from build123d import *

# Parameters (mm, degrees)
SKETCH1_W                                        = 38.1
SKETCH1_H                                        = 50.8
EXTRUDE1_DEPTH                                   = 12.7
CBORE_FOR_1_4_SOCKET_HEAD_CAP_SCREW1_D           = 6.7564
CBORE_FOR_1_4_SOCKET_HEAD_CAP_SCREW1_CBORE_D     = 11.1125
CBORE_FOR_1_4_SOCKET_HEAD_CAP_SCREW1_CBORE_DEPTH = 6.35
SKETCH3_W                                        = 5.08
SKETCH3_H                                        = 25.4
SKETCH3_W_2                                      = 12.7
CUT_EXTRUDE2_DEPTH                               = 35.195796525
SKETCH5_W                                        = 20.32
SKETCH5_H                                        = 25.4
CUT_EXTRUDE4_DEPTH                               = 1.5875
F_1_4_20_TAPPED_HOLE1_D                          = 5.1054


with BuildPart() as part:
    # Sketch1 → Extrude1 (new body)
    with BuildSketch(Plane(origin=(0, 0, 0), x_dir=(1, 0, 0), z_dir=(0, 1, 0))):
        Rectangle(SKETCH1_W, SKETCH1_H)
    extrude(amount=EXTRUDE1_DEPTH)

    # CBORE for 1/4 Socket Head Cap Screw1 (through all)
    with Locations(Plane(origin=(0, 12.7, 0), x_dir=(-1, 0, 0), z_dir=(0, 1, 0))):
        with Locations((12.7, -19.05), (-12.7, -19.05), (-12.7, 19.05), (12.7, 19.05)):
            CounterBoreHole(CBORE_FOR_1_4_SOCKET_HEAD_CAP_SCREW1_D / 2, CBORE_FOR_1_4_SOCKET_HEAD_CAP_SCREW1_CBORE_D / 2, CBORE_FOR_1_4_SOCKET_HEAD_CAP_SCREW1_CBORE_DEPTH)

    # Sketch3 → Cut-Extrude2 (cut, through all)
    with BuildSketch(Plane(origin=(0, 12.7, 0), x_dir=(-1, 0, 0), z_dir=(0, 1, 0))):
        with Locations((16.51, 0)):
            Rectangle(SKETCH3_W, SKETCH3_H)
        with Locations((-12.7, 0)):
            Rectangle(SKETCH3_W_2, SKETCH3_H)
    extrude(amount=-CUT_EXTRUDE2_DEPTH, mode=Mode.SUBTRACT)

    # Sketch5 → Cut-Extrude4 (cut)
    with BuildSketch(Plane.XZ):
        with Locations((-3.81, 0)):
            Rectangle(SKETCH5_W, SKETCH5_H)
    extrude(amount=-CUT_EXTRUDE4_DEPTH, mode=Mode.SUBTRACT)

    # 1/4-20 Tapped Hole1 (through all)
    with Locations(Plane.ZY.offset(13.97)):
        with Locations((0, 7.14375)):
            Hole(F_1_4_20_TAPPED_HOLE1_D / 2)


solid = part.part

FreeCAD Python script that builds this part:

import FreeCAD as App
import Part
import Sketcher
Q = App.Units.Quantity

doc = App.newDocument("Part")
body = doc.addObject("PartDesign::Body", "Body")

sketch1 = doc.addObject("Sketcher::SketchObject", "Sketch")
body.addObject(sketch1)
sketch1.AttachmentSupport = (doc.XZ_Plane, [""])
sketch1.MapMode = "FlatFace"
sketch1.addGeometry(Part.LineSegment(App.Vector(-19, -25, 0), App.Vector(-19, 25, 0)), False)
sketch1.addGeometry(Part.LineSegment(App.Vector(-19, 25, 0), App.Vector(19, 25, 0)), False)
sketch1.addGeometry(Part.LineSegment(App.Vector(19, 25, 0), App.Vector(19, -25, 0)), False)
sketch1.addGeometry(Part.LineSegment(App.Vector(19, -25, 0), App.Vector(-19, -25, 0)), False)
sketch1.addConstraint(Sketcher.Constraint("Coincident", 0, 2, 1, 1))
sketch1.addConstraint(Sketcher.Constraint("Coincident", 1, 2, 2, 1))
sketch1.addConstraint(Sketcher.Constraint("Coincident", 2, 2, 3, 1))
sketch1.addConstraint(Sketcher.Constraint("Coincident", 3, 2, 0, 1))
sketch1.addConstraint(Sketcher.Constraint("Vertical", 0))
sketch1.addConstraint(Sketcher.Constraint("Horizontal", 1))
sketch1.addConstraint(Sketcher.Constraint("Vertical", 2))
sketch1.addConstraint(Sketcher.Constraint("Horizontal", 3))
sketch1.addConstraint(Sketcher.Constraint("Symmetric", 0, 2, 2, 2, -1, 1))
sketch1.addConstraint(Sketcher.Constraint("DistanceY", 0, 1, 0, 2, Q("2 in")))
sketch1.addConstraint(Sketcher.Constraint("DistanceX", 1, 1, 1, 2, Q("1.5 in")))
pad1 = doc.addObject("PartDesign::Pad", "Pad")
body.addObject(pad1)
pad1.Profile = sketch1
pad1.Length = Q("0.5 in")
pad1.Reversed = True

sketch2 = doc.addObject("Sketcher::SketchObject", "Sketch001")
body.addObject(sketch2)
sketch2.AttachmentSupport = (doc.XZ_Plane, [""])
sketch2.MapMode = "FlatFace"
sketch2.AttachmentOffset = App.Placement(App.Vector(0, 0, -0.5 * 25.4), App.Rotation())
sketch2.addGeometry(Part.Circle(App.Vector(-12.7, -19.1, 0), App.Vector(0, 0, 1), 3.4), False)
sketch2.addGeometry(Part.Circle(App.Vector(12.7, -19.1, 0), App.Vector(0, 0, 1), 3.4), False)
sketch2.addGeometry(Part.Circle(App.Vector(12.7, 19.1, 0), App.Vector(0, 0, 1), 3.4), False)
sketch2.addGeometry(Part.Circle(App.Vector(-12.7, 19.1, 0), App.Vector(0, 0, 1), 3.4), False)
sketch2.addConstraint(Sketcher.Constraint("Equal", 0, 1))
sketch2.addConstraint(Sketcher.Constraint("Equal", 1, 2))
sketch2.addConstraint(Sketcher.Constraint("Equal", 2, 3))
sketch2.addConstraint(Sketcher.Constraint("Symmetric", 0, 3, 2, 3, -1, 1))
sketch2.addConstraint(Sketcher.Constraint("Symmetric", 1, 3, 3, 3, -1, 1))
sketch2.addConstraint(Sketcher.Constraint("Symmetric", 0, 3, 1, 3, -2))
sketch2.addConstraint(Sketcher.Constraint("Diameter", 0, Q("0.266 in")))
sketch2.addConstraint(Sketcher.Constraint("DistanceX", 0, 3, 1, 3, Q("1 in")))
sketch2.addConstraint(Sketcher.Constraint("DistanceY", 1, 3, 2, 3, Q("1.5 in")))
doc.recompute()
hole = doc.addObject("PartDesign::Hole", "Hole")
body.addObject(hole)
hole.Profile = sketch2
hole.ThreadType = "None"
hole.Diameter = Q("0.266 in")
hole.DepthType = "ThroughAll"
hole.HoleCutType = "Counterbore"
hole.HoleCutDiameter = Q("0.4375 in")
hole.HoleCutDepth = Q("0.25 in")
hole.Reversed = True

sketch3 = doc.addObject("Sketcher::SketchObject", "Sketch002")
body.addObject(sketch3)
sketch3.AttachmentSupport = (doc.XZ_Plane, [""])
sketch3.MapMode = "FlatFace"
sketch3.AttachmentOffset = App.Placement(App.Vector(0, 0, -0.5 * 25.4), App.Rotation())
sketch3.addGeometry(Part.LineSegment(App.Vector(-14, 13, 0), App.Vector(-14, -13, 0)), False)
sketch3.addGeometry(Part.LineSegment(App.Vector(-14, -13, 0), App.Vector(-19, -13, 0)), False)
sketch3.addGeometry(Part.LineSegment(App.Vector(-19, -13, 0), App.Vector(-19, 13, 0)), False)
sketch3.addGeometry(Part.LineSegment(App.Vector(-19, 13, 0), App.Vector(-14, 13, 0)), False)
sketch3.addGeometry(Part.LineSegment(App.Vector(19, 13, 0), App.Vector(19, -13, 0)), False)
sketch3.addGeometry(Part.LineSegment(App.Vector(19, -13, 0), App.Vector(6, -13, 0)), False)
sketch3.addGeometry(Part.LineSegment(App.Vector(6, -13, 0), App.Vector(6, 13, 0)), False)
sketch3.addGeometry(Part.LineSegment(App.Vector(6, 13, 0), App.Vector(19, 13, 0)), False)
sketch3.addConstraint(Sketcher.Constraint("Coincident", 0, 2, 1, 1))
sketch3.addConstraint(Sketcher.Constraint("Coincident", 1, 2, 2, 1))
sketch3.addConstraint(Sketcher.Constraint("Coincident", 2, 2, 3, 1))
sketch3.addConstraint(Sketcher.Constraint("Coincident", 3, 2, 0, 1))
sketch3.addConstraint(Sketcher.Constraint("Coincident", 4, 2, 5, 1))
sketch3.addConstraint(Sketcher.Constraint("Coincident", 5, 2, 6, 1))
sketch3.addConstraint(Sketcher.Constraint("Coincident", 6, 2, 7, 1))
sketch3.addConstraint(Sketcher.Constraint("Coincident", 7, 2, 4, 1))
sketch3.addConstraint(Sketcher.Constraint("Vertical", 0))
sketch3.addConstraint(Sketcher.Constraint("Horizontal", 1))
sketch3.addConstraint(Sketcher.Constraint("Vertical", 2))
sketch3.addConstraint(Sketcher.Constraint("Horizontal", 3))
sketch3.addConstraint(Sketcher.Constraint("Vertical", 4))
sketch3.addConstraint(Sketcher.Constraint("Horizontal", 5))
sketch3.addConstraint(Sketcher.Constraint("Vertical", 6))
sketch3.addConstraint(Sketcher.Constraint("Horizontal", 7))
sketch3.addConstraint(Sketcher.Constraint("Symmetric", 2, 2, 4, 2, -1, 1))
sketch3.addConstraint(Sketcher.Constraint("Horizontal", 1, 2, 4, 2))
sketch3.addConstraint(Sketcher.Constraint("Horizontal", 3, 2, 6, 2))
sketch3.addConstraint(Sketcher.Constraint("DistanceY", 0, 2, 0, 1, Q("1 in")))
sketch3.addConstraint(Sketcher.Constraint("DistanceX", 1, 2, 1, 1, Q("0.2 in")))
sketch3.addConstraint(Sketcher.Constraint("DistanceX", 5, 2, 5, 1, Q("0.5 in")))
sketch3.addConstraint(Sketcher.Constraint("DistanceX", 1, 2, 5, 2, Q("1 in")))
pocket1 = doc.addObject("PartDesign::Pocket", "Pocket")
body.addObject(pocket1)
pocket1.Profile = sketch3
pocket1.Type = "ThroughAll"
pocket1.Reversed = True

sketch4 = doc.addObject("Sketcher::SketchObject", "Sketch003")
body.addObject(sketch4)
sketch4.AttachmentSupport = (doc.XZ_Plane, [""])
sketch4.MapMode = "FlatFace"
sketch4.addGeometry(Part.LineSegment(App.Vector(-14, 13, 0), App.Vector(-14, -13, 0)), False)
sketch4.addGeometry(Part.LineSegment(App.Vector(-14, -13, 0), App.Vector(6, -13, 0)), False)
sketch4.addGeometry(Part.LineSegment(App.Vector(6, -13, 0), App.Vector(6, 13, 0)), False)
sketch4.addGeometry(Part.LineSegment(App.Vector(6, 13, 0), App.Vector(-14, 13, 0)), False)
sketch4.addConstraint(Sketcher.Constraint("Coincident", 0, 2, 1, 1))
sketch4.addConstraint(Sketcher.Constraint("Coincident", 1, 2, 2, 1))
sketch4.addConstraint(Sketcher.Constraint("Coincident", 2, 2, 3, 1))
sketch4.addConstraint(Sketcher.Constraint("Coincident", 3, 2, 0, 1))
sketch4.addConstraint(Sketcher.Constraint("Vertical", 0))
sketch4.addConstraint(Sketcher.Constraint("Horizontal", 1))
sketch4.addConstraint(Sketcher.Constraint("Vertical", 2))
sketch4.addConstraint(Sketcher.Constraint("Horizontal", 3))
sketch4.addConstraint(Sketcher.Constraint("DistanceY", 0, 2, 0, 1, Q("1 in")))
sketch4.addConstraint(Sketcher.Constraint("DistanceX", 1, 1, 1, 2, Q("0.8 in")))
sketch4.addConstraint(Sketcher.Constraint("DistanceY", 0, 2, -1, 1, Q("0.5 in")))
sketch4.addConstraint(Sketcher.Constraint("DistanceX", 0, 2, -1, 1, Q("0.55 in")))
pocket2 = doc.addObject("PartDesign::Pocket", "Pocket001")
body.addObject(pocket2)
pocket2.Profile = sketch4
pocket2.Length = Q("0.0625 in")

sketch5 = doc.addObject("Sketcher::SketchObject", "Sketch004")
body.addObject(sketch5)
sketch5.AttachmentSupport = (doc.YZ_Plane, [""])
sketch5.MapMode = "FlatFace"
sketch5.AttachmentOffset = App.Placement(App.Vector(0, 0, -0.55 * 25.4), App.Rotation())
sketch5.addGeometry(Part.Circle(App.Vector(7.1, 0, 0), App.Vector(0, 0, 1), 2.6), False)
sketch5.addConstraint(Sketcher.Constraint("PointOnObject", 0, 3, -1))
sketch5.addConstraint(Sketcher.Constraint("Diameter", 0, Q("0.201 in")))
sketch5.addConstraint(Sketcher.Constraint("DistanceX", -1, 1, 0, 3, Q("0.28125 in")))
doc.recompute()
hole2 = doc.addObject("PartDesign::Hole", "Hole001")
body.addObject(hole2)
hole2.Profile = sketch5
hole2.ThreadType = "None"
hole2.Diameter = Q("0.201 in")
hole2.DepthType = "ThroughAll"
hole2.Reversed = True

doc.recompute()
